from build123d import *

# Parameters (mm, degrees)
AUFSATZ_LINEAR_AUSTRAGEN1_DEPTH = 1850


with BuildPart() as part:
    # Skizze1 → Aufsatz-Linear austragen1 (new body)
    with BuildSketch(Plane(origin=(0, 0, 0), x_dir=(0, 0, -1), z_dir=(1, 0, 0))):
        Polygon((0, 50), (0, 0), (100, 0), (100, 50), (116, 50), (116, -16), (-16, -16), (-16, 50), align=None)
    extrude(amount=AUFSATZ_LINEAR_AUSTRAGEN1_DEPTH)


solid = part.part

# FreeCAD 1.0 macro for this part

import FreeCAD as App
import Part
import Sketcher
Q = App.Units.Quantity

doc = App.newDocument("Part")
body = doc.addObject("PartDesign::Body", "Body")

# Sketch on YZ plane
sketch1 = body.newObject("Sketcher::SketchObject", "Sketch")
sketch1.AttachmentSupport = (doc.getObject("YZ_Plane"), [""])
sketch1.MapMode = "FlatFace"
sketch1.addGeometry([
    Part.LineSegment(App.Vector(0, 0, 0), App.Vector(50, 0, 0)),  # 0
    Part.LineSegment(App.Vector(50, 0, 0), App.Vector(50, 16, 0)),  # 1
    Part.LineSegment(App.Vector(50, 16, 0), App.Vector(-16, 16, 0)),  # 2
    Part.LineSegment(App.Vector(-16, 16, 0), App.Vector(-16, -116, 0)),  # 3
    Part.LineSegment(App.Vector(-16, -116, 0), App.Vector(50, -116, 0)),  # 4
    Part.LineSegment(App.Vector(50, -116, 0), App.Vector(50, -100, 0)),  # 5
    Part.LineSegment(App.Vector(50, -100, 0), App.Vector(0, -100, 0)),  # 6
    Part.LineSegment(App.Vector(0, -100, 0), App.Vector(0, 0, 0)),  # 7
], False)
sketch1.addConstraint([
    Sketcher.Constraint("Coincident", 0, 2, 1, 1),
    Sketcher.Constraint("Coincident", 1, 2, 2, 1),
    Sketcher.Constraint("Coincident", 2, 2, 3, 1),
    Sketcher.Constraint("Coincident", 3, 2, 4, 1),
    Sketcher.Constraint("Coincident", 4, 2, 5, 1),
    Sketcher.Constraint("Coincident", 5, 2, 6, 1),
    Sketcher.Constraint("Coincident", 6, 2, 7, 1),
    Sketcher.Constraint("Coincident", 7, 2, 0, 1),
    Sketcher.Constraint("Horizontal", 0),
    Sketcher.Constraint("Vertical", 1),
    Sketcher.Constraint("Horizontal", 2),
    Sketcher.Constraint("Vertical", 3),
    Sketcher.Constraint("Horizontal", 4),
    Sketcher.Constraint("Vertical", 5),
    Sketcher.Constraint("Horizontal", 6),
    Sketcher.Constraint("Vertical", 7),
    Sketcher.Constraint("Coincident", 7, 2, -1, 1),
    Sketcher.Constraint("Vertical", 1, 2, 4, 2),
    Sketcher.Constraint("Equal", 1, 5),
    Sketcher.Constraint("DistanceX", 0, 1, 0, 2, Q("50 mm")),
    Sketcher.Constraint("DistanceX", 2, 2, 2, 1, Q("66 mm")),
    Sketcher.Constraint("DistanceY", 1, 1, 1, 2, Q("16 mm")),
    Sketcher.Constraint("DistanceY", 3, 2, 3, 1, Q("132 mm")),
])
pad1 = body.newObject("PartDesign::Pad", "Pad")
pad1.Profile = sketch1
pad1.Length = 1850

doc.recompute()
